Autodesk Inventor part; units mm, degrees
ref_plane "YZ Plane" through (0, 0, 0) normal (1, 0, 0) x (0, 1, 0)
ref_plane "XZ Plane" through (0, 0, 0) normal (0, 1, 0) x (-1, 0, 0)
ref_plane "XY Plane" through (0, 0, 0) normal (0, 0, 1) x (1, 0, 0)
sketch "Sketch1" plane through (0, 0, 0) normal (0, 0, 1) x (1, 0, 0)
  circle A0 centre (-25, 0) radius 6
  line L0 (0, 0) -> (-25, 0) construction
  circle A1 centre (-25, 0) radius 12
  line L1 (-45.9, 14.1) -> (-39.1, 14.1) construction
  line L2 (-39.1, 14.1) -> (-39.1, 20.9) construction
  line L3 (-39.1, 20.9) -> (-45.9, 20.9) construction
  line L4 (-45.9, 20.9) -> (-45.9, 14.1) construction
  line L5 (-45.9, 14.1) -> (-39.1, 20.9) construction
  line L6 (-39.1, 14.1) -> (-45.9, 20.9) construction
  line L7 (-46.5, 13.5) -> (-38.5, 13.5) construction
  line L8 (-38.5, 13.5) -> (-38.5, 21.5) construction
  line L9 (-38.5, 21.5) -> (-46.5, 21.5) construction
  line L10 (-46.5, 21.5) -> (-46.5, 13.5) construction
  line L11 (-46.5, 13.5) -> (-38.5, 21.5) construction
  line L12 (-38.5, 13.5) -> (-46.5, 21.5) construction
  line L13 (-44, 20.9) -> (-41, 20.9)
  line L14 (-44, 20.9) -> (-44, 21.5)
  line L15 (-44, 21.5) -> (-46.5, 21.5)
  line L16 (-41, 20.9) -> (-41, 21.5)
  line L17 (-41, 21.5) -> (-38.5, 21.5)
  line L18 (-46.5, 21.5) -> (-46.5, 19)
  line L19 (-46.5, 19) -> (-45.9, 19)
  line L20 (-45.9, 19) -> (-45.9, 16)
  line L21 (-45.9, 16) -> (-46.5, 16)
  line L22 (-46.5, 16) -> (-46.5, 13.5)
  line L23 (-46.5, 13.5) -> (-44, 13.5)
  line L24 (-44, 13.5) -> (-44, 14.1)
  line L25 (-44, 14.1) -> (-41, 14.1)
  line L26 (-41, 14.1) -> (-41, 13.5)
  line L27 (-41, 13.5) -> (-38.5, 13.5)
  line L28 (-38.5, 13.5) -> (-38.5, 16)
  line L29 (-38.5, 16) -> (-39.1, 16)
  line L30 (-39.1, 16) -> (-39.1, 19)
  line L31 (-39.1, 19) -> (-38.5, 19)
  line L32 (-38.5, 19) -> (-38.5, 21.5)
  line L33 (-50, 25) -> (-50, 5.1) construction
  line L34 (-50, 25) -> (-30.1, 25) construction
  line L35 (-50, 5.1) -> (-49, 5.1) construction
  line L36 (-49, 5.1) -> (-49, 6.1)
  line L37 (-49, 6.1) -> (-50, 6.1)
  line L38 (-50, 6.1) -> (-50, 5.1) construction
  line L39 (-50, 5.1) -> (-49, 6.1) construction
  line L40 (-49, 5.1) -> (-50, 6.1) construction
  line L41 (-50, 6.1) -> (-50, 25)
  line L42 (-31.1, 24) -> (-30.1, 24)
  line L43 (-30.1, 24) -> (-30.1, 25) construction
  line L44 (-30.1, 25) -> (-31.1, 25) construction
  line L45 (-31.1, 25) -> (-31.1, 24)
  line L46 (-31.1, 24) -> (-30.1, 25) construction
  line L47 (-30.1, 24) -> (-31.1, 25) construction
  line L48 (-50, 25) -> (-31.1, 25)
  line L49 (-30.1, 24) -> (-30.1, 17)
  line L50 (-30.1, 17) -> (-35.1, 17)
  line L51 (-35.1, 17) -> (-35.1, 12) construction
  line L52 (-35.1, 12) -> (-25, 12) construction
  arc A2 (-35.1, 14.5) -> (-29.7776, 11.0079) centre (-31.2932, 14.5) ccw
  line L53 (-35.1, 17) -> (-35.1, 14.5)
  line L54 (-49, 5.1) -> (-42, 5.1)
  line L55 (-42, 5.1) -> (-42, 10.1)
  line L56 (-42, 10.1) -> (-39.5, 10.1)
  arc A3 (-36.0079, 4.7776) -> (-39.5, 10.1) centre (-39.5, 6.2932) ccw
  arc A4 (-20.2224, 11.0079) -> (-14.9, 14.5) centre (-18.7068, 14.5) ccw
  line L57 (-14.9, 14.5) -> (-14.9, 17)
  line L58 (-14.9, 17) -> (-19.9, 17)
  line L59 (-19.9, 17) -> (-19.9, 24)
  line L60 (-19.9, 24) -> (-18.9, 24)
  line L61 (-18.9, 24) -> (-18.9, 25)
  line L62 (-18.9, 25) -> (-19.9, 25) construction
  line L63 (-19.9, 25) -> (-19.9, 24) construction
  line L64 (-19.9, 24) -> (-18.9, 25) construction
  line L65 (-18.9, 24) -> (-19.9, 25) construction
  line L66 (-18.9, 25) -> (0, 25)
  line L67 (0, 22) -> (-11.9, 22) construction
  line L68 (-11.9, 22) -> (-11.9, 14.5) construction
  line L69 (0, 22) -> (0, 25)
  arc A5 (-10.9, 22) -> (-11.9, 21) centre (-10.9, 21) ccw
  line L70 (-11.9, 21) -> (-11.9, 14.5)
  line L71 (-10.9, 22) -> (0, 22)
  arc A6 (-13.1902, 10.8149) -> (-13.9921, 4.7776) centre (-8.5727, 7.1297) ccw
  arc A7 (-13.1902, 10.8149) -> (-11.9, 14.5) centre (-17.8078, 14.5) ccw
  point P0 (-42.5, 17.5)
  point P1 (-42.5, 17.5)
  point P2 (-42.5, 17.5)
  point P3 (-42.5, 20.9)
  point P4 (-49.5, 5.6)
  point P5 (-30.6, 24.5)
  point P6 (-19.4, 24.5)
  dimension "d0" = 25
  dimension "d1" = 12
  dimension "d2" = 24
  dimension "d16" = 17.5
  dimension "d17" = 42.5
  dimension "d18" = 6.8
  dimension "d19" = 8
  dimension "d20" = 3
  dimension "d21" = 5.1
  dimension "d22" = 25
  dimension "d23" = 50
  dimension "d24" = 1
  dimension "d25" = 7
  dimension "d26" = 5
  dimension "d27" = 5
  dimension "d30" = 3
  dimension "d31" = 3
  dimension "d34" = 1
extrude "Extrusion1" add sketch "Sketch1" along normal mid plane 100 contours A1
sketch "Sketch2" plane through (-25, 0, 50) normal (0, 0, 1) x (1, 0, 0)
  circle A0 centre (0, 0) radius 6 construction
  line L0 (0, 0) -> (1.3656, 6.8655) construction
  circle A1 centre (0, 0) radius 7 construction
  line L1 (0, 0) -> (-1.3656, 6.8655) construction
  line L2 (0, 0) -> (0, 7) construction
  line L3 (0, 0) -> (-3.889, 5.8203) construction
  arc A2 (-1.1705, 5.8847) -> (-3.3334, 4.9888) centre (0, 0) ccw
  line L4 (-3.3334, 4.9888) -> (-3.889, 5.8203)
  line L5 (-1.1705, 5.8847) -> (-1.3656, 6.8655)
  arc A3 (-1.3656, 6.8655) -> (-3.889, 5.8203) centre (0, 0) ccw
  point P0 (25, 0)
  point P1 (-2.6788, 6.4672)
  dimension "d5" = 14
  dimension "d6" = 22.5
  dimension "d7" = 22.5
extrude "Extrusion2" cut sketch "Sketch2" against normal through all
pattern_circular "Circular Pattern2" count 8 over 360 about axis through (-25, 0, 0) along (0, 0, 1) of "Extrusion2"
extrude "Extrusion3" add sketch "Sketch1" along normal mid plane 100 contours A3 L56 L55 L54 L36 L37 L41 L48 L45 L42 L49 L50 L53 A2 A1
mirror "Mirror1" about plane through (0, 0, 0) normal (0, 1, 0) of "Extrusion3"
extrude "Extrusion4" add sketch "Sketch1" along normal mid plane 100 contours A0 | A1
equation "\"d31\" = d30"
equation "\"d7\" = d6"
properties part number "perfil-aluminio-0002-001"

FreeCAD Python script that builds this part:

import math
import FreeCAD as App
import Part
import Sketcher
Q = App.Units.Quantity


def add_polygon(sketch, points):
    """Adds a closed chain of lines whose ends are joined by coincident constraints."""
    first, n = sketch.GeometryCount, len(points)
    for a, b in zip(points, points[1:] + points[:1]):
        sketch.addGeometry(Part.LineSegment(App.Vector(*a, 0), App.Vector(*b, 0)), False)
    for i in range(n):
        sketch.addConstraint(Sketcher.Constraint("Coincident", first + i, 2, first + (i + 1) % n, 1))

doc = App.newDocument("Part")
body = doc.addObject("PartDesign::Body", "Body")

sketch1 = body.newObject("Sketcher::SketchObject", "Sketch")
sketch1.AttachmentSupport = (doc.getObject("XY_Plane"), [""])
sketch1.MapMode = "FlatFace"
sketch1.addGeometry(Part.Circle(App.Vector(-25, 0, 0), App.Vector(0, 0, 1), 12), False)
sketch1.addGeometry(Part.Circle(App.Vector(-25, 0, 0), App.Vector(0, 0, 1), 6), False)
sketch1.addConstraint(Sketcher.Constraint("Coincident", 1, 3, 0, 3))
sketch1.addConstraint(Sketcher.Constraint("PointOnObject", 0, 3, -1))
sketch1.addConstraint(Sketcher.Constraint("Diameter", 0, Q("24 mm")))
sketch1.addConstraint(Sketcher.Constraint("Diameter", 1, Q("12 mm")))
sketch1.addConstraint(Sketcher.Constraint("DistanceX", 0, 3, -1, 1, Q("25 mm")))
pad1 = body.newObject("PartDesign::Pad", "Pad")
pad1.Profile = sketch1
pad1.Length = 100
pad1.Midplane = True

sketch2 = body.newObject("Sketcher::SketchObject", "Sketch001")
sketch2.AttachmentSupport = (doc.getObject("XY_Plane"), [""])
sketch2.MapMode = "FlatFace"
sketch2.AttachmentOffset = App.Placement(App.Vector(0, 0, 50), App.Rotation())
sketch2.addGeometry(Part.ArcOfCircle(Part.Circle(App.Vector(-25, 0, 0), App.Vector(0, 0, 1), 5.99998), math.radians(101.249629), math.radians(123.749924)), False)
sketch2.addGeometry(Part.LineSegment(App.Vector(-26.1705, 5.8847, 0), App.Vector(-26.3656, 6.8655, 0)), False)
sketch2.addGeometry(Part.ArcOfCircle(Part.Circle(App.Vector(-25, 0, 0), App.Vector(0, 0, 1), 7), math.radians(101.249736), math.radians(123.749999)), False)
sketch2.addGeometry(Part.LineSegment(App.Vector(-28.889, 5.8203, 0), App.Vector(-28.3334, 4.9888, 0)), False)
sketch2.addConstraint(Sketcher.Constraint("Coincident", 0, 1, 1, 1))
sketch2.addConstraint(Sketcher.Constraint("Coincident", 1, 2, 2, 1))
sketch2.addConstraint(Sketcher.Constraint("Coincident", 2, 2, 3, 1))
sketch2.addConstraint(Sketcher.Constraint("Coincident", 3, 2, 0, 2))
sketch2.addConstraint(Sketcher.Constraint("Coincident", 2, 3, 0, 3))
sketch2.addConstraint(Sketcher.Constraint("PointOnObject", 0, 3, -1))
sketch2.addConstraint(Sketcher.Constraint("Radius", 2, Q("7 mm")))
sketch2.addConstraint(Sketcher.Constraint("Radius", 0, Q("6 mm")))
sketch2.addConstraint(Sketcher.Constraint("DistanceX", 0, 3, -1, 1, Q("25 mm")))
sketch2.addConstraint(Sketcher.Constraint("Angle", 1, Q("101.2504 deg")))
sketch2.addConstraint(Sketcher.Constraint("Angle", 3, Q("-56.2495 deg")))
sketch2.addConstraint(Sketcher.Constraint("DistanceX", 2, 2, -1, 1, Q("28.889 mm")))
sketch2.addConstraint(Sketcher.Constraint("DistanceX", 3, 2, 0, 1, Q("2.163 mm")))
pocket1 = body.newObject("PartDesign::Pocket", "Pocket")
pocket1.Profile = sketch2
pocket1.Type = "ThroughAll"
doc.recompute()

datumline = body.newObject("PartDesign::Line", "DatumLine")
datumline.Placement = App.Placement(App.Vector(-25, 0, 0), App.Rotation(App.Vector(0, 0, 1), App.Vector(0, 0, 1)))
polarpattern = body.newObject("PartDesign::PolarPattern", "PolarPattern")
polarpattern.Originals = [pocket1]
polarpattern.Axis = (datumline, [""])
polarpattern.Angle = 360
polarpattern.Occurrences = 8
body.Tip = polarpattern

sketch3 = body.newObject("Sketcher::SketchObject", "Sketch002")
sketch3.AttachmentSupport = (doc.getObject("XY_Plane"), [""])
sketch3.MapMode = "FlatFace"
sketch3.addGeometry(Part.ArcOfCircle(Part.Circle(App.Vector(-39.5, 6.2932, 0), App.Vector(0, 0, 1), 3.80681), math.radians(-23.461238), math.radians(90)), False)
sketch3.addGeometry(Part.ArcOfCircle(Part.Circle(App.Vector(-25, 0, 0), App.Vector(0, 0, 1), 12), math.radians(113.461594), math.radians(156.538406)), False)
sketch3.addGeometry(Part.ArcOfCircle(Part.Circle(App.Vector(-31.2932, 14.5, 0), App.Vector(0, 0, 1), 3.8068), math.radians(180), math.radians(293.461238)), False)
sketch3.addGeometry(Part.LineSegment(App.Vector(-35.1, 14.5, 0), App.Vector(-35.1, 17, 0)), False)
sketch3.addGeometry(Part.LineSegment(App.Vector(-35.1, 17, 0), App.Vector(-30.1, 17, 0)), False)
sketch3.addGeometry(Part.LineSegment(App.Vector(-30.1, 17, 0), App.Vector(-30.1, 24, 0)), False)
sketch3.addGeometry(Part.LineSegment(App.Vector(-30.1, 24, 0), App.Vector(-31.1, 24, 0)), False)
sketch3.addGeometry(Part.LineSegment(App.Vector(-31.1, 24, 0), App.Vector(-31.1, 25, 0)), False)
sketch3.addGeometry(Part.LineSegment(App.Vector(-31.1, 25, 0), App.Vector(-50, 25, 0)), False)
sketch3.addGeometry(Part.LineSegment(App.Vector(-50, 25, 0), App.Vector(-50, 6.1, 0)), False)
sketch3.addGeometry(Part.LineSegment(App.Vector(-50, 6.1, 0), App.Vector(-49, 6.1, 0)), False)
sketch3.addGeometry(Part.LineSegment(App.Vector(-49, 6.1, 0), App.Vector(-49, 5.1, 0)), False)
sketch3.addGeometry(Part.LineSegment(App.Vector(-49, 5.1, 0), App.Vector(-42, 5.1, 0)), False)
sketch3.addGeometry(Part.LineSegment(App.Vector(-42, 5.1, 0), App.Vector(-42, 10.1, 0)), False)
sketch3.addGeometry(Part.LineSegment(App.Vector(-42, 10.1, 0), App.Vector(-39.5, 10.1, 0)), False)
add_polygon(sketch3, [(-44, 21.5), (-44, 20.9), (-41, 20.9), (-41, 21.5), (-38.5, 21.5), (-38.5, 19), (-39.1, 19), (-39.1, 16), (-38.5, 16), (-38.5, 13.5), (-41, 13.5), (-41, 14.1), (-44, 14.1), (-44, 13.5), (-46.5, 13.5), (-46.5, 16), (-45.9, 16), (-45.9, 19), (-46.5, 19), (-46.5, 21.5)])
sketch3.addConstraint(Sketcher.Constraint("Tangent", 0, 1, 1, 2))
sketch3.addConstraint(Sketcher.Constraint("Tangent", 1, 1, 2, 2))
sketch3.addConstraint(Sketcher.Constraint("Tangent", 2, 1, 3, 1))
sketch3.addConstraint(Sketcher.Constraint("Coincident", 3, 2, 4, 1))
sketch3.addConstraint(Sketcher.Constraint("Coincident", 4, 2, 5, 1))
sketch3.addConstraint(Sketcher.Constraint("Coincident", 5, 2, 6, 1))
sketch3.addConstraint(Sketcher.Constraint("Coincident", 6, 2, 7, 1))
sketch3.addConstraint(Sketcher.Constraint("Coincident", 7, 2, 8, 1))
sketch3.addConstraint(Sketcher.Constraint("Coincident", 8, 2, 9, 1))
sketch3.addConstraint(Sketcher.Constraint("Coincident", 9, 2, 10, 1))
sketch3.addConstraint(Sketcher.Constraint("Coincident", 10, 2, 11, 1))
sketch3.addConstraint(Sketcher.Constraint("Coincident", 11, 2, 12, 1))
sketch3.addConstraint(Sketcher.Constraint("Coincident", 12, 2, 13, 1))
sketch3.addConstraint(Sketcher.Constraint("Coincident", 13, 2, 14, 1))
sketch3.addConstraint(Sketcher.Constraint("Tangent", 14, 2, 0, 2))
sketch3.addConstraint(Sketcher.Constraint("Vertical", 3))
sketch3.addConstraint(Sketcher.Constraint("Horizontal", 4))
sketch3.addConstraint(Sketcher.Constraint("Vertical", 5))
sketch3.addConstraint(Sketcher.Constraint("Horizontal", 6))
sketch3.addConstraint(Sketcher.Constraint("Vertical", 7))
sketch3.addConstraint(Sketcher.Constraint("Horizontal", 8))
sketch3.addConstraint(Sketcher.Constraint("Vertical", 9))
sketch3.addConstraint(Sketcher.Constraint("Horizontal", 10))
sketch3.addConstraint(Sketcher.Constraint("Vertical", 11))
sketch3.addConstraint(Sketcher.Constraint("Horizontal", 12))
sketch3.addConstraint(Sketcher.Constraint("Vertical", 13))
sketch3.addConstraint(Sketcher.Constraint("Horizontal", 14))
sketch3.addConstraint(Sketcher.Constraint("Vertical", 15))
sketch3.addConstraint(Sketcher.Constraint("Horizontal", 16))
sketch3.addConstraint(Sketcher.Constraint("Vertical", 17))
sketch3.addConstraint(Sketcher.Constraint("Horizontal", 18))
sketch3.addConstraint(Sketcher.Constraint("Vertical", 19))
sketch3.addConstraint(Sketcher.Constraint("Horizontal", 20))
sketch3.addConstraint(Sketcher.Constraint("Vertical", 21))
sketch3.addConstraint(Sketcher.Constraint("Horizontal", 22))
sketch3.addConstraint(Sketcher.Constraint("Vertical", 23))
sketch3.addConstraint(Sketcher.Constraint("Horizontal", 24))
sketch3.addConstraint(Sketcher.Constraint("Vertical", 25))
sketch3.addConstraint(Sketcher.Constraint("Horizontal", 26))
sketch3.addConstraint(Sketcher.Constraint("Vertical", 27))
sketch3.addConstraint(Sketcher.Constraint("Horizontal", 28))
sketch3.addConstraint(Sketcher.Constraint("Vertical", 29))
sketch3.addConstraint(Sketcher.Constraint("Horizontal", 30))
sketch3.addConstraint(Sketcher.Constraint("Vertical", 31))
sketch3.addConstraint(Sketcher.Constraint("Horizontal", 32))
sketch3.addConstraint(Sketcher.Constraint("Vertical", 33))
sketch3.addConstraint(Sketcher.Constraint("Horizontal", 34))
sketch3.addConstraint(Sketcher.Constraint("Equal", 0, 2))
sketch3.addConstraint(Sketcher.Constraint("PointOnObject", 1, 3, -1))
sketch3.addConstraint(Sketcher.Constraint("Horizontal", 24, 2, 27, 2))
sketch3.addConstraint(Sketcher.Constraint("Horizontal", 22, 2, 29, 2))
sketch3.addConstraint(Sketcher.Constraint("Horizontal", 20, 2, 31, 2))
sketch3.addConstraint(Sketcher.Constraint("Horizontal", 18, 2, 33, 2))
sketch3.addConstraint(Sketcher.Constraint("Vertical", 19, 2, 22, 2))
sketch3.addConstraint(Sketcher.Constraint("Vertical", 17, 2, 24, 2))
sketch3.addConstraint(Sketcher.Constraint("Vertical", 15, 2, 26, 2))
sketch3.addConstraint(Sketcher.Constraint("Vertical", 29, 2, 32, 2))
sketch3.addConstraint(Sketcher.Constraint("Equal", 6, 10))
sketch3.addConstraint(Sketcher.Constraint("Equal", 14, 18))
sketch3.addConstraint(Sketcher.Constraint("Equal", 24, 28))
sketch3.addConstraint(Sketcher.Constraint("Equal", 22, 30))
sketch3.addConstraint(Sketcher.Constraint("Equal", 34, 3))
sketch3.addConstraint(Sketcher.Constraint("Equal", 12, 5))
sketch3.addConstraint(Sketcher.Constraint("Equal", 10, 7))
sketch3.addConstraint(Sketcher.Constraint("Equal", 8, 9))
sketch3.addConstraint(Sketcher.Constraint("Equal", 7, 11))
sketch3.addConstraint(Sketcher.Constraint("Equal", 4, 13))
sketch3.addConstraint(Sketcher.Constraint("Equal", 32, 15))
sketch3.addConstraint(Sketcher.Constraint("Equal", 3, 19))
sketch3.addConstraint(Sketcher.Constraint("Equal", 26, 21))
sketch3.addConstraint(Sketcher.Constraint("Equal", 19, 23))
sketch3.addConstraint(Sketcher.Constraint("Equal", 17, 25))
sketch3.addConstraint(Sketcher.Constraint("Radius", 1, Q("12 mm")))
sketch3.addConstraint(Sketcher.Constraint("DistanceX", 4, 1, 4, 2, Q("5 mm")))
sketch3.addConstraint(Sketcher.Constraint("DistanceX", 6, 2, 6, 1, Q("1 mm")))
sketch3.addConstraint(Sketcher.Constraint("DistanceX", 12, 1, 12, 2, Q("7 mm")))
sketch3.addConstraint(Sketcher.Constraint("DistanceX", 16, 1, 16, 2, Q("3 mm")))
sketch3.addConstraint(Sketcher.Constraint("DistanceX", 1, 3, -1, 1, Q("25 mm")))
sketch3.addConstraint(Sketcher.Constraint("DistanceY", -1, 1, 5, 2, Q("24 mm")))
sketch3.addConstraint(Sketcher.Constraint("DistanceY", 2, 1, 17, 2, Q("7 mm")))
sketch3.addConstraint(Sketcher.Constraint("DistanceY", 21, 2, 3, 2, Q("1 mm")))
sketch3.addConstraint(Sketcher.Constraint("DistanceX", 14, 2, 23, 2, Q("1 mm")))
sketch3.addConstraint(Sketcher.Constraint("DistanceY", -1, 1, 11, 2, Q("5.1 mm")))
sketch3.addConstraint(Sketcher.Constraint("DistanceX", 20, 2, 20, 1, Q("0.6 mm")))
pad2 = body.newObject("PartDesign::Pad", "Pad001")
pad2.Profile = sketch3
pad2.Length = 100
pad2.Midplane = True
doc.recompute()

mirrored = body.newObject("PartDesign::Mirrored", "Mirrored")
mirrored.Originals = [pad2]
mirrored.MirrorPlane = (doc.getObject("XZ_Plane"), [""])
body.Tip = mirrored

sketch4 = body.newObject("Sketcher::SketchObject", "Sketch003")
sketch4.AttachmentSupport = (doc.getObject("XY_Plane"), [""])
sketch4.MapMode = "FlatFace"
sketch4.addGeometry(Part.Circle(App.Vector(-25, 0, 0), App.Vector(0, 0, 1), 12), False)
sketch4.addConstraint(Sketcher.Constraint("PointOnObject", 0, 3, -1))
sketch4.addConstraint(Sketcher.Constraint("Diameter", 0, Q("24 mm")))
sketch4.addConstraint(Sketcher.Constraint("DistanceX", 0, 3, -1, 1, Q("25 mm")))
pad3 = body.newObject("PartDesign::Pad", "Pad002")
pad3.Profile = sketch4
pad3.Length = 100
pad3.Midplane = True

doc.recompute()
